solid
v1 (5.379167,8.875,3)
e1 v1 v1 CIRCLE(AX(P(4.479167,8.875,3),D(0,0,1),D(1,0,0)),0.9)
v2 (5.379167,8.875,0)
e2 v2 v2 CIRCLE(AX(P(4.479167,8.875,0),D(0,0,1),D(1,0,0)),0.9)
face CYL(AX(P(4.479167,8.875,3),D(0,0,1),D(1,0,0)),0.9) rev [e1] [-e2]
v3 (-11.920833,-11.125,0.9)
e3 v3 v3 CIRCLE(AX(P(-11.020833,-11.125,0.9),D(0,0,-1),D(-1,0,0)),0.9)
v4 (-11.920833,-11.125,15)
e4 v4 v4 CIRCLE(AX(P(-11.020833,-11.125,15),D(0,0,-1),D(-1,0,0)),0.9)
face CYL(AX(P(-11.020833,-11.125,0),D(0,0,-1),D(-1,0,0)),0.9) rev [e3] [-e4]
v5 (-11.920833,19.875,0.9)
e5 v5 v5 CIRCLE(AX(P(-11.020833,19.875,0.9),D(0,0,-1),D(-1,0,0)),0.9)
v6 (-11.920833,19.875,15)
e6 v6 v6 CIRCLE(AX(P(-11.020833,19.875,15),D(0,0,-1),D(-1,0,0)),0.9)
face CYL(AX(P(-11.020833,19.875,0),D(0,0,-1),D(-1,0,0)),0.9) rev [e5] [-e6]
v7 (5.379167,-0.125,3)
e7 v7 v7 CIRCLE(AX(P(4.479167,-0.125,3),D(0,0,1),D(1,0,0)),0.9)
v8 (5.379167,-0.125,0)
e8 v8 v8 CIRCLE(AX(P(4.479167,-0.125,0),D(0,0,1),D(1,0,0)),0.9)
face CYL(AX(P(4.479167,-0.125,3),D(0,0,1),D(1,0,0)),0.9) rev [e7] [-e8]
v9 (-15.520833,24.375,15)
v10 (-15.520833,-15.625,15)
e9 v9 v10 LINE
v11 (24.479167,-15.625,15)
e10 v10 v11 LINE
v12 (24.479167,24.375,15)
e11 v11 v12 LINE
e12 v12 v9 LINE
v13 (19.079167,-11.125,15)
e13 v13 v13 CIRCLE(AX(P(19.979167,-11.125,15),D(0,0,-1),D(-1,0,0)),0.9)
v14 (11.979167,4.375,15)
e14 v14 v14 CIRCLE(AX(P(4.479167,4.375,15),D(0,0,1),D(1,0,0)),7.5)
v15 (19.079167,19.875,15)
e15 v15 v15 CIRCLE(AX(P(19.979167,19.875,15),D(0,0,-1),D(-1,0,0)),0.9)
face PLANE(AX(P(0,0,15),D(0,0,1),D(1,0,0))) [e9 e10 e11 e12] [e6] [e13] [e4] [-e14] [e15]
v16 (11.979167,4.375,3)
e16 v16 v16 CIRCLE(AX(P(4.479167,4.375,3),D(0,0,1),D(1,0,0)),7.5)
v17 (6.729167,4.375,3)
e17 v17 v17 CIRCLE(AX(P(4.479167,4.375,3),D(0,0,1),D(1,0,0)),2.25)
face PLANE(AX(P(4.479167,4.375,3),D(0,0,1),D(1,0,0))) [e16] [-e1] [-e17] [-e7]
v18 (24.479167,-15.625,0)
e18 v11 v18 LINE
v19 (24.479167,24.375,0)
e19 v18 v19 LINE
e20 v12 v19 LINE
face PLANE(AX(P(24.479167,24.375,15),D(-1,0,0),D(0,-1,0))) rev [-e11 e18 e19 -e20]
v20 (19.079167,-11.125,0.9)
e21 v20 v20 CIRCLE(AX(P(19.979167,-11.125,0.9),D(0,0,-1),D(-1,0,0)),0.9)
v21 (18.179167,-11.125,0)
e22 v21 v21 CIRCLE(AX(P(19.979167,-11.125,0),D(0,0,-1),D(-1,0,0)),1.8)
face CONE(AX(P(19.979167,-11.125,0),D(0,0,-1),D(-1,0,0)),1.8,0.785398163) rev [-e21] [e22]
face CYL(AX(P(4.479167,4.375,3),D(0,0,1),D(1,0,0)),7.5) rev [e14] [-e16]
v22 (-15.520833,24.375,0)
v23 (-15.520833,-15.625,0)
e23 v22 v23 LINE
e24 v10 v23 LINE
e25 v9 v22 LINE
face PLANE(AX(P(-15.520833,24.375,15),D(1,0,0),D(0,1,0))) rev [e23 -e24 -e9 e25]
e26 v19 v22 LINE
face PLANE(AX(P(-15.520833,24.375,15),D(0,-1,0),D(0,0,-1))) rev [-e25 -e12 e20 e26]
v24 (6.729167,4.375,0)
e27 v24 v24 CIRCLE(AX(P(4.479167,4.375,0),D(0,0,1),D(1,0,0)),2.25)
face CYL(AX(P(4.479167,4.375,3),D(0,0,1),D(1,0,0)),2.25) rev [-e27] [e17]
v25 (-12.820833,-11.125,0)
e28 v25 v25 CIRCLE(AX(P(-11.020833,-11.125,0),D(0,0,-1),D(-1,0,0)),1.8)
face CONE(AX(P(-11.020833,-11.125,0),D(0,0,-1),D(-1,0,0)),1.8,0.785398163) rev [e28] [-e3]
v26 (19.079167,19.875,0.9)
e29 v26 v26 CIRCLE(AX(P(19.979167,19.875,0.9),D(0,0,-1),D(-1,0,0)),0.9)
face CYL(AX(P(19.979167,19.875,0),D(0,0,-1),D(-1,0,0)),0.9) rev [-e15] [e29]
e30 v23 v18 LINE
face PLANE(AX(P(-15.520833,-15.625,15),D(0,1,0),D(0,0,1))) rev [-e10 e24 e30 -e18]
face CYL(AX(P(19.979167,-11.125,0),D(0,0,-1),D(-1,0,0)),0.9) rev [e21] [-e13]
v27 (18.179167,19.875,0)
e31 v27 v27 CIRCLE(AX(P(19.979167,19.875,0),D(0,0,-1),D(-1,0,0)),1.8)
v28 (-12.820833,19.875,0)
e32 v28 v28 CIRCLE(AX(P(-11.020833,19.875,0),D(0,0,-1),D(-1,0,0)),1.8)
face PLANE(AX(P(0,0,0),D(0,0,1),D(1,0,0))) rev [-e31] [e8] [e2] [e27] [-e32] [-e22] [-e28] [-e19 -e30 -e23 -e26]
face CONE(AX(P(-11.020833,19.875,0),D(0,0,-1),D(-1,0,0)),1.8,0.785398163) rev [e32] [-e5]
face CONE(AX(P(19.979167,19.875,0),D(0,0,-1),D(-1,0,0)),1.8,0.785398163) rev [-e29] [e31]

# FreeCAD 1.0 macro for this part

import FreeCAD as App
import Part
import Sketcher


def add_polygon(sketch, points):
    """Adds a closed chain of lines whose ends are joined by coincident constraints."""
    first, n = sketch.GeometryCount, len(points)
    for a, b in zip(points, points[1:] + points[:1]):
        sketch.addGeometry(Part.LineSegment(App.Vector(*a, 0), App.Vector(*b, 0)), False)
    for i in range(n):
        sketch.addConstraint(Sketcher.Constraint("Coincident", first + i, 2, first + (i + 1) % n, 1))

doc = App.newDocument("Part")
params = doc.addObject("Spreadsheet::Sheet", "Params")
for row, (alias, value) in enumerate([
    ("sketch1_width", "40 mm"),
    ("pad1_length", "15 mm"),
    ("sketch2_diameter", "15 mm"),
    ("pocket1_length", "12 mm"),
    ("sketch3_diameter", "4.5 mm"),
    ("hole_diameter", "4.5 mm"),
    ("sketch4_diameter", "1.8 mm"),
    ("hole2_diameter", "1.8 mm"),
    ("sketch5_diameter", "1.8 mm"),
    ("hole3_diameter", "1.8 mm"),
    ("hole3_csink_diameter", "3.6 mm"),
], start=1):
    params.set(f"A{row}", alias)
    params.set(f"B{row}", "=" + value)
    params.setAlias(f"B{row}", alias)

body = doc.addObject("PartDesign::Body", "Body")

# Sketch on XY plane
sketch1 = body.newObject("Sketcher::SketchObject", "Sketch")
sketch1.AttachmentSupport = (doc.getObject("XY_Plane"), [""])
sketch1.MapMode = "FlatFace"
add_polygon(sketch1, [(-16, 24), (-16, -16), (24, -16), (24, 24)])  # lines 0-3
sketch1.addConstraint([
    Sketcher.Constraint("Vertical", 0),
    Sketcher.Constraint("Horizontal", 1),
    Sketcher.Constraint("Vertical", 2),
    Sketcher.Constraint("Horizontal", 3),
    Sketcher.Constraint("Equal", 3, 0),
    Sketcher.Constraint("DistanceX", 1, 1, 1, 2, 40.0),
    Sketcher.Constraint("DistanceY", 0, 2, -1, 1, 15.625),
    Sketcher.Constraint("DistanceX", 0, 2, -1, 1, 15.520833),
])
sketch1.setExpression("Constraints[9]", "Params.sketch1_width")
pad1 = body.newObject("PartDesign::Pad", "Pad")
pad1.Profile = sketch1
pad1.setExpression("Length", "Params.pad1_length")

# Sketch on XY plane
sketch2 = body.newObject("Sketcher::SketchObject", "Sketch001")
sketch2.AttachmentSupport = (doc.getObject("XY_Plane"), [""])
sketch2.MapMode = "FlatFace"
sketch2.AttachmentOffset = App.Placement(App.Vector(0, 0, 15), App.Rotation())
sketch2.addGeometry(Part.Circle(App.Vector(4, 4, 0), App.Vector(0, 0, 1), 8), False)
sketch2.addConstraint([
    Sketcher.Constraint("Diameter", 0, 15.0),
    Sketcher.Constraint("DistanceY", -1, 1, 0, 3, 4.375),
    Sketcher.Constraint("DistanceX", -1, 1, 0, 3, 4.479167),
])
sketch2.setExpression("Constraints[0]", "Params.sketch2_diameter")
pocket1 = body.newObject("PartDesign::Pocket", "Pocket")
pocket1.Profile = sketch2
pocket1.setExpression("Length", "Params.pocket1_length")

# Sketch on XY plane
sketch3 = body.newObject("Sketcher::SketchObject", "Sketch002")
sketch3.AttachmentSupport = (doc.getObject("XY_Plane"), [""])
sketch3.MapMode = "FlatFace"
sketch3.AttachmentOffset = App.Placement(App.Vector(0, 0, 3), App.Rotation())
sketch3.addGeometry(Part.Circle(App.Vector(4.5, 4.4, 0), App.Vector(0, 0, 1), 2.2), False)
sketch3.addConstraint([
    Sketcher.Constraint("Diameter", 0, 4.5),
    Sketcher.Constraint("DistanceY", -1, 1, 0, 3, 4.375),
    Sketcher.Constraint("DistanceX", -1, 1, 0, 3, 4.479167),
])
sketch3.setExpression("Constraints[0]", "Params.sketch3_diameter")
doc.recompute()
hole = body.newObject("PartDesign::Hole", "Hole")
hole.Profile = sketch3
hole.ThreadType = "None"
hole.setExpression("Diameter", "Params.hole_diameter")
hole.DepthType = "ThroughAll"

# Sketch on XY plane
sketch4 = body.newObject("Sketcher::SketchObject", "Sketch003")
sketch4.AttachmentSupport = (doc.getObject("XY_Plane"), [""])
sketch4.MapMode = "FlatFace"
sketch4.AttachmentOffset = App.Placement(App.Vector(0, 0, 3), App.Rotation())
sketch4.addGeometry([
    Part.Circle(App.Vector(4.5, 8.9, 0), App.Vector(0, 0, 1), 0.9),
    Part.Circle(App.Vector(4.5, -0.1, 0), App.Vector(0, 0, 1), 0.9),
], False)
sketch4.addConstraint([
    Sketcher.Constraint("Equal", 0, 1),
    Sketcher.Constraint("Vertical", 0, 3, 1, 3),
    Sketcher.Constraint("Diameter", 0, 1.8),
    Sketcher.Constraint("DistanceY", 1, 3, 0, 3, 9.0),
    Sketcher.Constraint("DistanceY", -1, 1, 0, 3, 8.875),
    Sketcher.Constraint("DistanceX", -1, 1, 0, 3, 4.479167),
])
sketch4.setExpression("Constraints[2]", "Params.sketch4_diameter")
doc.recompute()
hole2 = body.newObject("PartDesign::Hole", "Hole001")
hole2.Profile = sketch4
hole2.ThreadType = "None"
hole2.setExpression("Diameter", "Params.hole2_diameter")
hole2.DepthType = "ThroughAll"

# Sketch on XY plane
sketch5 = body.newObject("Sketcher::SketchObject", "Sketch004")
sketch5.AttachmentSupport = (doc.getObject("XY_Plane"), [""])
sketch5.MapMode = "FlatFace"
sketch5.addGeometry([
    Part.Circle(App.Vector(20, 19.9, 0), App.Vector(0, 0, 1), 0.9),
    Part.Circle(App.Vector(-11, 19.9, 0), App.Vector(0, 0, 1), 0.9),
    Part.Circle(App.Vector(-11, -11.1, 0), App.Vector(0, 0, 1), 0.9),
    Part.Circle(App.Vector(20, -11.1, 0), App.Vector(0, 0, 1), 0.9),
], False)
sketch5.addConstraint([
    Sketcher.Constraint("Equal", 0, 1),
    Sketcher.Constraint("Equal", 1, 2),
    Sketcher.Constraint("Equal", 2, 3),
    Sketcher.Constraint("Horizontal", 0, 3, 1, 3),
    Sketcher.Constraint("Horizontal", 2, 3, 3, 3),
    Sketcher.Constraint("Vertical", 1, 3, 2, 3),
    Sketcher.Constraint("Vertical", 0, 3, 3, 3),
    Sketcher.Constraint("Diameter", 0, 1.8),
    Sketcher.Constraint("DistanceX", 1, 3, 0, 3, 31.0),
    Sketcher.Constraint("DistanceY", 2, 3, 1, 3, 31.0),
    Sketcher.Constraint("DistanceY", -1, 1, 0, 3, 19.875),
    Sketcher.Constraint("DistanceX", -1, 1, 0, 3, 19.979167),
])
sketch5.setExpression("Constraints[7]", "Params.sketch5_diameter")
doc.recompute()
hole3 = body.newObject("PartDesign::Hole", "Hole002")
hole3.Profile = sketch5
hole3.ThreadType = "None"
hole3.setExpression("Diameter", "Params.hole3_diameter")
hole3.DepthType = "ThroughAll"
hole3.HoleCutType = "Countersink"
hole3.setExpression("HoleCutDiameter", "Params.hole3_csink_diameter")
hole3.HoleCutCountersinkAngle = 90
hole3.Reversed = True

doc.recompute()
